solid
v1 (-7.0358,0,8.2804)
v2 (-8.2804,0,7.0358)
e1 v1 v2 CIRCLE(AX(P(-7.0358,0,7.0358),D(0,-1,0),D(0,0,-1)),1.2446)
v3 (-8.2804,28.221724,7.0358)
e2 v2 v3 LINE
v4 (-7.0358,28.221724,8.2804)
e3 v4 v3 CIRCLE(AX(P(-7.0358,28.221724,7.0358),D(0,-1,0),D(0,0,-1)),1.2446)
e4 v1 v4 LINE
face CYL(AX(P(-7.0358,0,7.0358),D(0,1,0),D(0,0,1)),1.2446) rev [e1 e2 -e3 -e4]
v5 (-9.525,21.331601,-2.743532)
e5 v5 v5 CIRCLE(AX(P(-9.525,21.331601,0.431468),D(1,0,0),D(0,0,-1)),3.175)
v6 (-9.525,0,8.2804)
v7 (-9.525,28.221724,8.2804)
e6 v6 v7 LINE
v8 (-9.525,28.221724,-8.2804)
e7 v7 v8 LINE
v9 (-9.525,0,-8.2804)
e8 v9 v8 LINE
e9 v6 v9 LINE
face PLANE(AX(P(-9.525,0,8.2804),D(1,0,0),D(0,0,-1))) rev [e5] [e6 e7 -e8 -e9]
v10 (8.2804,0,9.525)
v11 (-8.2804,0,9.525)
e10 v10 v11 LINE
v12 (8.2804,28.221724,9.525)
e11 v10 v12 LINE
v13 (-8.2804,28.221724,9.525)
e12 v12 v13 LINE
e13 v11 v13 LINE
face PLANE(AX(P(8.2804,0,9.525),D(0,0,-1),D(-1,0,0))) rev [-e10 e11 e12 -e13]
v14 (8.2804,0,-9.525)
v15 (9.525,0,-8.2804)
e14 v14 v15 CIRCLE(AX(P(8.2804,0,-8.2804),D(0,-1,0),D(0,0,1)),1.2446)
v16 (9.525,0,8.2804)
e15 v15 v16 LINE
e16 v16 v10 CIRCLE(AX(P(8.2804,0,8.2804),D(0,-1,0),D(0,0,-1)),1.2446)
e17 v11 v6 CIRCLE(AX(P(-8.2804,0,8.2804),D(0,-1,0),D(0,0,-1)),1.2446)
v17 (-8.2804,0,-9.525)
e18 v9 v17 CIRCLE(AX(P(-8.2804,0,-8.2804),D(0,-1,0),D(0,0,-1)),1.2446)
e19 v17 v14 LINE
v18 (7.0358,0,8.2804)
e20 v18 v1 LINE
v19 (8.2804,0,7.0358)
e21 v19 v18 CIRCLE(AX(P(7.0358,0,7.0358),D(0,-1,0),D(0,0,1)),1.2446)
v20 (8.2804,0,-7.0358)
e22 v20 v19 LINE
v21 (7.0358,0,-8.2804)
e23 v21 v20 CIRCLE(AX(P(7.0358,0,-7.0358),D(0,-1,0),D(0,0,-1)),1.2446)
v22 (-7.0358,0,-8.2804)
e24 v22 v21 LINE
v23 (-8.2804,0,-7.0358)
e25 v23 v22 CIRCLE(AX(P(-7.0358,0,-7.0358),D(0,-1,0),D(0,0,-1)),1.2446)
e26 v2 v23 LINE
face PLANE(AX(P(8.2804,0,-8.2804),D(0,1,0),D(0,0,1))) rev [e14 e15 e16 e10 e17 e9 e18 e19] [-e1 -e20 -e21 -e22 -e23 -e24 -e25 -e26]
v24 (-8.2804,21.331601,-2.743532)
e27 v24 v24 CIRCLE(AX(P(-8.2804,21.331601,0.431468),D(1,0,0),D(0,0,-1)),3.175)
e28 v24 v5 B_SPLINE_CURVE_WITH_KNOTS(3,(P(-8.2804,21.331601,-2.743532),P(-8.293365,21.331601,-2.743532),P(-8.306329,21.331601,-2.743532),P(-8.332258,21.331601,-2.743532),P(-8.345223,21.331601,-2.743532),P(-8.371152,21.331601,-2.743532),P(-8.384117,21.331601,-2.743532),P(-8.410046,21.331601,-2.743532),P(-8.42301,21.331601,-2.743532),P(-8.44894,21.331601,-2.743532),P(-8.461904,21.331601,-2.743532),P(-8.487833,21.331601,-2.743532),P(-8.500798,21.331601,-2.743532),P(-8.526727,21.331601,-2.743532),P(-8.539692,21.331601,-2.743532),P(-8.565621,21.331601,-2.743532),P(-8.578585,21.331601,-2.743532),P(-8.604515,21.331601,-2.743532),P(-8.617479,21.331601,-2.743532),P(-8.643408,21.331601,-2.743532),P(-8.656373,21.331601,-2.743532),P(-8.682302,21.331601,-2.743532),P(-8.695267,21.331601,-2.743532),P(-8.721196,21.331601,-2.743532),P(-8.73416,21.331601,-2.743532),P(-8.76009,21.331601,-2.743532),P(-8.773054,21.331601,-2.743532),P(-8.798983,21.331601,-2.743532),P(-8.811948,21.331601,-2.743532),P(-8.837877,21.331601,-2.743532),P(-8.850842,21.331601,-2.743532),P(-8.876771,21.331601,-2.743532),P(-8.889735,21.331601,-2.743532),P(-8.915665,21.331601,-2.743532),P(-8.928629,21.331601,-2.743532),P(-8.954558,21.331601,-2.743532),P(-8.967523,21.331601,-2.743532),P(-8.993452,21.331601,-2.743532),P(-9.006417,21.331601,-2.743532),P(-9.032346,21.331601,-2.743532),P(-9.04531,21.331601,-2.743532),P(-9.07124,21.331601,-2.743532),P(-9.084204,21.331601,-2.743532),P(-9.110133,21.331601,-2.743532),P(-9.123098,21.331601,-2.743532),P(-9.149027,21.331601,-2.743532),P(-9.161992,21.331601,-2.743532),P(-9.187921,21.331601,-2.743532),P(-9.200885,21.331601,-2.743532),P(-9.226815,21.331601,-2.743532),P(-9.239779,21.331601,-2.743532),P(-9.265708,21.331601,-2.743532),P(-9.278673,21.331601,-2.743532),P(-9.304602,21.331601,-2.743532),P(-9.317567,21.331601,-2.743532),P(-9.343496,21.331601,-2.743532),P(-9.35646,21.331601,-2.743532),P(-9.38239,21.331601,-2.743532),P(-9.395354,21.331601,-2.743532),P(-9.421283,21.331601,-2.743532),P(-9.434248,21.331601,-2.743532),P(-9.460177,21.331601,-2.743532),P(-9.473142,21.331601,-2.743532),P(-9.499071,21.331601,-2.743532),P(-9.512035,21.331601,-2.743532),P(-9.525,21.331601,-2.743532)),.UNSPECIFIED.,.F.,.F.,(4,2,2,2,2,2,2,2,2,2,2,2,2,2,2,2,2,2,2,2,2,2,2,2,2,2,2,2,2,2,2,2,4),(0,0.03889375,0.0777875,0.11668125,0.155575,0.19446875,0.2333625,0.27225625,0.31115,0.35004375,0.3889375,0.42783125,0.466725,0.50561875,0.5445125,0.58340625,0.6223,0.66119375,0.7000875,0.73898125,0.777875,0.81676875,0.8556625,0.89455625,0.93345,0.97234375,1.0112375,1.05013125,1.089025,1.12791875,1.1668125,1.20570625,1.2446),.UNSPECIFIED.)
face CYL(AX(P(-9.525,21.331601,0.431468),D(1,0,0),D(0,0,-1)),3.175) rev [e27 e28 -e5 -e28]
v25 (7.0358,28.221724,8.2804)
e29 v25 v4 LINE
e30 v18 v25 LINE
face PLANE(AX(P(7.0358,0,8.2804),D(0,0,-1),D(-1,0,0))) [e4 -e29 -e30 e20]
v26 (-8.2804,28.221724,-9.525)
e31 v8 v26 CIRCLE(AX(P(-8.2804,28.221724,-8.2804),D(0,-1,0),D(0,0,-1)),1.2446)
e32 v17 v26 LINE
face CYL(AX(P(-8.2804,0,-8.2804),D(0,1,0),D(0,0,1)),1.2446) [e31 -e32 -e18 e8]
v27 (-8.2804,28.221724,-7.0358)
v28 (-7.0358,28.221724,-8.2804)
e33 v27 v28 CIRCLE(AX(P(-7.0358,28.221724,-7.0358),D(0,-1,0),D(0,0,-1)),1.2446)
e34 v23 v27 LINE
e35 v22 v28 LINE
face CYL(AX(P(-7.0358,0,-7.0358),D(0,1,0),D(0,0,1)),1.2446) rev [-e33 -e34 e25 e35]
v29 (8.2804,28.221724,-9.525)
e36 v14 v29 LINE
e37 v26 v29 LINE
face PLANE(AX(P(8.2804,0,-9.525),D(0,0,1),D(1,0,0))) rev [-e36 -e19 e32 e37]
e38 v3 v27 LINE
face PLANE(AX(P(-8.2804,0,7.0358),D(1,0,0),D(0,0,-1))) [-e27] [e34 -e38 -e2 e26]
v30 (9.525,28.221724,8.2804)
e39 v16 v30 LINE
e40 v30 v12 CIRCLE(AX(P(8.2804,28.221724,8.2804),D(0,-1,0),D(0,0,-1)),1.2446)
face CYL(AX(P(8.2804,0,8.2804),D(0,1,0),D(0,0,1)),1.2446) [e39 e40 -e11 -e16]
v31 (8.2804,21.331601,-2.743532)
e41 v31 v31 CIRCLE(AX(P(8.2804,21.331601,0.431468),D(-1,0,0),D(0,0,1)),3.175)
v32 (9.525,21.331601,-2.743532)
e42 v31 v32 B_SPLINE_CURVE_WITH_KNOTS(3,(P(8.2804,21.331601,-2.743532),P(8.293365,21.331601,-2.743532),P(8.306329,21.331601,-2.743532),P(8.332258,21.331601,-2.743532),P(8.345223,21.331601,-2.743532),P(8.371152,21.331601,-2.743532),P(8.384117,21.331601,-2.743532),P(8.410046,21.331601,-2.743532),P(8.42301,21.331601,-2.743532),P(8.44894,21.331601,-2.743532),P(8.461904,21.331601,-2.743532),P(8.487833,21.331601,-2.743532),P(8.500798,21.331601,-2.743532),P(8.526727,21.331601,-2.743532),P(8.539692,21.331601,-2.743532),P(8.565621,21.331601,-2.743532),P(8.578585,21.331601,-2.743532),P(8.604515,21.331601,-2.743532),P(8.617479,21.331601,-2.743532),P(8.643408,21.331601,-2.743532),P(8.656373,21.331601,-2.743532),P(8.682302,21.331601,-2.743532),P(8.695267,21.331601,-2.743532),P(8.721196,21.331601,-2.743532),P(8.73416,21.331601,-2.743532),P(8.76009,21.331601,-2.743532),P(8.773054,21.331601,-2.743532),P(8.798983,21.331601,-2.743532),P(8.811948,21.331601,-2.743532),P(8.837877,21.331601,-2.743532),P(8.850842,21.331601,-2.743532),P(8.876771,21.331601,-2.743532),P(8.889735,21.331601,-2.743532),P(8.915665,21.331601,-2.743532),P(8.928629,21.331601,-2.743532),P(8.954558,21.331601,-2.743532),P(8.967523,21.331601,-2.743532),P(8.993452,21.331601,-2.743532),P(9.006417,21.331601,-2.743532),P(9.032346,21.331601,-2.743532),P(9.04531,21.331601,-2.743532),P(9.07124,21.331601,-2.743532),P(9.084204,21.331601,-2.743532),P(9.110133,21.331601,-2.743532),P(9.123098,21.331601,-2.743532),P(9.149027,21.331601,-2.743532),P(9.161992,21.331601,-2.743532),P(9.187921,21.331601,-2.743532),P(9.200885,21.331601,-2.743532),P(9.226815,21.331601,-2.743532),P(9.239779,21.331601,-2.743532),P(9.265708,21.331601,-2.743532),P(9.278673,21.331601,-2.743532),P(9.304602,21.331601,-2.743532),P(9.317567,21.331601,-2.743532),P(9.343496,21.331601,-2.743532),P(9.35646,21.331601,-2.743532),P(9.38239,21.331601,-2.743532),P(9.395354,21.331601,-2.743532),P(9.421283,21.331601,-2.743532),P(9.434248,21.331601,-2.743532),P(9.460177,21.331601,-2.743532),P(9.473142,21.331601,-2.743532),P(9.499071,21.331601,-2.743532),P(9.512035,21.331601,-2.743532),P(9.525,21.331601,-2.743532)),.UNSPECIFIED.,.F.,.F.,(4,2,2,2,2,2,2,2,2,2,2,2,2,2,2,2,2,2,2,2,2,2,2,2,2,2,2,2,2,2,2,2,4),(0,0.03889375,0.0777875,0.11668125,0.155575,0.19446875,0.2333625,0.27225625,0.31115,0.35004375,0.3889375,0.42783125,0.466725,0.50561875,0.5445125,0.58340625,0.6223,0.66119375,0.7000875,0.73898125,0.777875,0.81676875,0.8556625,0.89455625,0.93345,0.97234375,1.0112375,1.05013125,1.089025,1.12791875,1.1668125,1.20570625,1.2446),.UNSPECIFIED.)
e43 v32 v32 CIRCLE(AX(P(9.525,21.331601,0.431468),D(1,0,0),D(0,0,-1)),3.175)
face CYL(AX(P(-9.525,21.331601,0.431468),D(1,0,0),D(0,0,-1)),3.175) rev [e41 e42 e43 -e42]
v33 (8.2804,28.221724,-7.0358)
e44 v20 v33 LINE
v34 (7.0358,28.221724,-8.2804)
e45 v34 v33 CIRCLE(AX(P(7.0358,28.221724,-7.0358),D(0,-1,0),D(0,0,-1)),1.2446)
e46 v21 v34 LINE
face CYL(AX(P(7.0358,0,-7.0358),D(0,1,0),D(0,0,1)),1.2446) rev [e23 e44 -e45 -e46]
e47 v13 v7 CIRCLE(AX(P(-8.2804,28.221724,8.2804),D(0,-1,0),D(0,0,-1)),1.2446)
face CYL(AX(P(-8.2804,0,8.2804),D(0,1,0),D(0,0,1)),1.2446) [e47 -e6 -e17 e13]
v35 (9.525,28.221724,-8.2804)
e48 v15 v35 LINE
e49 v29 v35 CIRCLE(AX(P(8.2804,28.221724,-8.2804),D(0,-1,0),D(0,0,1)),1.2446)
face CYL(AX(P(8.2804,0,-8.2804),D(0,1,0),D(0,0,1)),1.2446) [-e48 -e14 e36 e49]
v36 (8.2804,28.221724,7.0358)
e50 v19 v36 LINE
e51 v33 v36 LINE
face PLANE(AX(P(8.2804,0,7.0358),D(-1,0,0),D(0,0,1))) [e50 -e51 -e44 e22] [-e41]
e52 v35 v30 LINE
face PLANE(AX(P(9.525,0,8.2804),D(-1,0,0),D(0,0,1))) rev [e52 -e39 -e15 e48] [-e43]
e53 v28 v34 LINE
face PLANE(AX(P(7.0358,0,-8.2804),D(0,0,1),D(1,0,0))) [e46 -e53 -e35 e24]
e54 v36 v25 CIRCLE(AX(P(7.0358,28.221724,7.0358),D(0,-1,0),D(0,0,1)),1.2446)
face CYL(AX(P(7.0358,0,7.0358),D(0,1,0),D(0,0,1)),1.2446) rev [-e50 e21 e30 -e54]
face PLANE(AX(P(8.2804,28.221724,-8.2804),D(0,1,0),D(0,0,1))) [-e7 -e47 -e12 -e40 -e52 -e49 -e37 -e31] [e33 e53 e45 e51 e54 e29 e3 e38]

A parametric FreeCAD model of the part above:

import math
import FreeCAD as App
import Part
import Sketcher

V = App.Vector
Q = App.Units.Quantity

doc = App.newDocument("Part")
body = doc.addObject("PartDesign::Body", "Body")

# Sketch on XZ plane
sketch1 = body.newObject("Sketcher::SketchObject", "Sketch")
sketch1.AttachmentSupport = (doc.getObject("XZ_Plane"), [""])
sketch1.MapMode = "FlatFace"
sketch1.AttachmentOffset = App.Placement(V(0, 0, -28.221724), App.Rotation())
sketch1.addGeometry(Part.LineSegment(V(9.525, -8.2804, 0), V(9.525, 8.2804, 0)), False)
sketch1.addGeometry(Part.ArcOfCircle(Part.Circle(V(8.2804, 8.2804, 0), V(0, 0, 1), 1.2446), math.radians(0), math.radians(90)), False)
sketch1.addGeometry(Part.LineSegment(V(8.2804, 9.525, 0), V(-8.2804, 9.525, 0)), False)
sketch1.addGeometry(Part.ArcOfCircle(Part.Circle(V(-8.2804, 8.2804, 0), V(0, 0, 1), 1.2446), math.radians(90), math.radians(180)), False)
sketch1.addGeometry(Part.LineSegment(V(-9.525, 8.2804, 0), V(-9.525, -8.2804, 0)), False)
sketch1.addGeometry(Part.ArcOfCircle(Part.Circle(V(-8.2804, -8.2804, 0), V(0, 0, 1), 1.2446), math.radians(180), math.radians(270)), False)
sketch1.addGeometry(Part.LineSegment(V(-8.2804, -9.525, 0), V(8.2804, -9.525, 0)), False)
sketch1.addGeometry(Part.ArcOfCircle(Part.Circle(V(8.2804, -8.2804, 0), V(0, 0, 1), 1.2446), math.radians(-90), math.radians(0)), False)
sketch1.addGeometry(Part.ArcOfCircle(Part.Circle(V(7.0358, 7.0358, 0), V(0, 0, 1), 1.2446), math.radians(0), math.radians(90)), False)
sketch1.addGeometry(Part.LineSegment(V(8.2804, 7.0358, 0), V(8.2804, -7.0358, 0)), False)
sketch1.addGeometry(Part.ArcOfCircle(Part.Circle(V(7.0358, -7.0358, 0), V(0, 0, 1), 1.2446), math.radians(-90), math.radians(0)), False)
sketch1.addGeometry(Part.LineSegment(V(7.0358, -8.2804, 0), V(-7.0358, -8.2804, 0)), False)
sketch1.addGeometry(Part.ArcOfCircle(Part.Circle(V(-7.0358, -7.0358, 0), V(0, 0, 1), 1.2446), math.radians(180), math.radians(270)), False)
sketch1.addGeometry(Part.LineSegment(V(-8.2804, -7.0358, 0), V(-8.2804, 7.0358, 0)), False)
sketch1.addGeometry(Part.ArcOfCircle(Part.Circle(V(-7.0358, 7.0358, 0), V(0, 0, 1), 1.2446), math.radians(90), math.radians(180)), False)
sketch1.addGeometry(Part.LineSegment(V(-7.0358, 8.2804, 0), V(7.0358, 8.2804, 0)), False)
sketch1.addConstraint(Sketcher.Constraint("Tangent", 0, 2, 1, 1))
sketch1.addConstraint(Sketcher.Constraint("Tangent", 1, 2, 2, 1))
sketch1.addConstraint(Sketcher.Constraint("Tangent", 2, 2, 3, 1))
sketch1.addConstraint(Sketcher.Constraint("Tangent", 3, 2, 4, 1))
sketch1.addConstraint(Sketcher.Constraint("Tangent", 4, 2, 5, 1))
sketch1.addConstraint(Sketcher.Constraint("Tangent", 5, 2, 6, 1))
sketch1.addConstraint(Sketcher.Constraint("Tangent", 6, 2, 7, 1))
sketch1.addConstraint(Sketcher.Constraint("Tangent", 7, 2, 0, 1))
sketch1.addConstraint(Sketcher.Constraint("Tangent", 8, 1, 9, 1))
sketch1.addConstraint(Sketcher.Constraint("Tangent", 9, 2, 10, 2))
sketch1.addConstraint(Sketcher.Constraint("Tangent", 10, 1, 11, 1))
sketch1.addConstraint(Sketcher.Constraint("Tangent", 11, 2, 12, 2))
sketch1.addConstraint(Sketcher.Constraint("Tangent", 12, 1, 13, 1))
sketch1.addConstraint(Sketcher.Constraint("Tangent", 13, 2, 14, 2))
sketch1.addConstraint(Sketcher.Constraint("Tangent", 14, 1, 15, 1))
sketch1.addConstraint(Sketcher.Constraint("Tangent", 15, 2, 8, 2))
sketch1.addConstraint(Sketcher.Constraint("Vertical", 0))
sketch1.addConstraint(Sketcher.Constraint("Horizontal", 2))
sketch1.addConstraint(Sketcher.Constraint("Vertical", 4))
sketch1.addConstraint(Sketcher.Constraint("Horizontal", 6))
sketch1.addConstraint(Sketcher.Constraint("Vertical", 9))
sketch1.addConstraint(Sketcher.Constraint("Horizontal", 11))
sketch1.addConstraint(Sketcher.Constraint("Vertical", 13))
sketch1.addConstraint(Sketcher.Constraint("Horizontal", 15))
sketch1.addConstraint(Sketcher.Constraint("Equal", 1, 3))
sketch1.addConstraint(Sketcher.Constraint("Equal", 3, 5))
sketch1.addConstraint(Sketcher.Constraint("Equal", 5, 7))
sketch1.addConstraint(Sketcher.Constraint("Equal", 7, 8))
sketch1.addConstraint(Sketcher.Constraint("Equal", 8, 10))
sketch1.addConstraint(Sketcher.Constraint("Equal", 10, 12))
sketch1.addConstraint(Sketcher.Constraint("Equal", 12, 14))
sketch1.addConstraint(Sketcher.Constraint("Symmetric", 1, 3, 5, 3, -1, 1))
sketch1.addConstraint(Sketcher.Constraint("Symmetric", 8, 3, 12, 3, -1, 1))
sketch1.addConstraint(Sketcher.Constraint("Horizontal", 7, 2, 10, 1))
sketch1.addConstraint(Sketcher.Constraint("Vertical", 6, 2, 8, 1))
sketch1.addConstraint(Sketcher.Constraint("Equal", 6, 0))
sketch1.addConstraint(Sketcher.Constraint("Radius", 1, Q("0.049 in")))
sketch1.addConstraint(Sketcher.Constraint("DistanceX", 2, 2, 2, 1, Q("0.652 in")))
pad1 = body.newObject("PartDesign::Pad", "Pad")
pad1.Profile = sketch1
pad1.Length = 28.221724

# Sketch on YZ plane
sketch2 = body.newObject("Sketcher::SketchObject", "Sketch001")
sketch2.AttachmentSupport = (doc.getObject("YZ_Plane"), [""])
sketch2.MapMode = "FlatFace"
sketch2.AttachmentOffset = App.Placement(V(0, 0, 0.375 * 25.4), App.Rotation())
sketch2.addGeometry(Part.Circle(V(21.331601, 0.431468, 0), V(0, 0, 1), 3.175), False)
sketch2.addConstraint(Sketcher.Constraint("Diameter", 0, Q("0.25 in")))
sketch2.addConstraint(Sketcher.Constraint("DistanceX", -1, 1, 0, 3, 21.331601))
sketch2.addConstraint(Sketcher.Constraint("DistanceY", -1, 1, 0, 3, 0.431468))
pocket1 = body.newObject("PartDesign::Pocket", "Pocket")
pocket1.Profile = sketch2
pocket1.Type = "ThroughAll"

doc.recompute()
